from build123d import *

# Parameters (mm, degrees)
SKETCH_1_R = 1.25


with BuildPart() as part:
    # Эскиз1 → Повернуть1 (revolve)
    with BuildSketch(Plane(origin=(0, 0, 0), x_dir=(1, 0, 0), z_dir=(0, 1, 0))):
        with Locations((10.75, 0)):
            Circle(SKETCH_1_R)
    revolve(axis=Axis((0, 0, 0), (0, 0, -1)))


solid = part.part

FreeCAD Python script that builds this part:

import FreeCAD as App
import Part
import Sketcher

doc = App.newDocument("Part")
params = doc.addObject("Spreadsheet::Sheet", "Params")
for row, (alias, value) in enumerate([
    ("sketch1_diameter", "2.5 mm"),
    ("revolution_angle", "360 deg"),
], start=1):
    params.set(f"A{row}", alias)
    params.set(f"B{row}", "=" + value)
    params.setAlias(f"B{row}", alias)

body = doc.addObject("PartDesign::Body", "Body")

sketch1 = body.newObject("Sketcher::SketchObject", "Sketch")
sketch1.AttachmentSupport = (doc.getObject("XZ_Plane"), [""])
sketch1.MapMode = "FlatFace"
sketch1.addGeometry(Part.Circle(App.Vector(10.75, 0, 0), App.Vector(0, 0, 1), 1.25), False)
sketch1.addConstraint(Sketcher.Constraint("PointOnObject", 0, 3, -1))
sketch1.addConstraint(Sketcher.Constraint("Diameter", 0, 2.5))
sketch1.addConstraint(Sketcher.Constraint("DistanceX", -1, 1, 0, 3, 10.75))
sketch1.setExpression("Constraints[1]", "Params.sketch1_diameter")
revolution = body.newObject("PartDesign::Revolution", "Revolution")
revolution.Profile = sketch1
revolution.ReferenceAxis = (sketch1, ["V_Axis"])
revolution.setExpression("Angle", "Params.revolution_angle")

doc.recompute()
